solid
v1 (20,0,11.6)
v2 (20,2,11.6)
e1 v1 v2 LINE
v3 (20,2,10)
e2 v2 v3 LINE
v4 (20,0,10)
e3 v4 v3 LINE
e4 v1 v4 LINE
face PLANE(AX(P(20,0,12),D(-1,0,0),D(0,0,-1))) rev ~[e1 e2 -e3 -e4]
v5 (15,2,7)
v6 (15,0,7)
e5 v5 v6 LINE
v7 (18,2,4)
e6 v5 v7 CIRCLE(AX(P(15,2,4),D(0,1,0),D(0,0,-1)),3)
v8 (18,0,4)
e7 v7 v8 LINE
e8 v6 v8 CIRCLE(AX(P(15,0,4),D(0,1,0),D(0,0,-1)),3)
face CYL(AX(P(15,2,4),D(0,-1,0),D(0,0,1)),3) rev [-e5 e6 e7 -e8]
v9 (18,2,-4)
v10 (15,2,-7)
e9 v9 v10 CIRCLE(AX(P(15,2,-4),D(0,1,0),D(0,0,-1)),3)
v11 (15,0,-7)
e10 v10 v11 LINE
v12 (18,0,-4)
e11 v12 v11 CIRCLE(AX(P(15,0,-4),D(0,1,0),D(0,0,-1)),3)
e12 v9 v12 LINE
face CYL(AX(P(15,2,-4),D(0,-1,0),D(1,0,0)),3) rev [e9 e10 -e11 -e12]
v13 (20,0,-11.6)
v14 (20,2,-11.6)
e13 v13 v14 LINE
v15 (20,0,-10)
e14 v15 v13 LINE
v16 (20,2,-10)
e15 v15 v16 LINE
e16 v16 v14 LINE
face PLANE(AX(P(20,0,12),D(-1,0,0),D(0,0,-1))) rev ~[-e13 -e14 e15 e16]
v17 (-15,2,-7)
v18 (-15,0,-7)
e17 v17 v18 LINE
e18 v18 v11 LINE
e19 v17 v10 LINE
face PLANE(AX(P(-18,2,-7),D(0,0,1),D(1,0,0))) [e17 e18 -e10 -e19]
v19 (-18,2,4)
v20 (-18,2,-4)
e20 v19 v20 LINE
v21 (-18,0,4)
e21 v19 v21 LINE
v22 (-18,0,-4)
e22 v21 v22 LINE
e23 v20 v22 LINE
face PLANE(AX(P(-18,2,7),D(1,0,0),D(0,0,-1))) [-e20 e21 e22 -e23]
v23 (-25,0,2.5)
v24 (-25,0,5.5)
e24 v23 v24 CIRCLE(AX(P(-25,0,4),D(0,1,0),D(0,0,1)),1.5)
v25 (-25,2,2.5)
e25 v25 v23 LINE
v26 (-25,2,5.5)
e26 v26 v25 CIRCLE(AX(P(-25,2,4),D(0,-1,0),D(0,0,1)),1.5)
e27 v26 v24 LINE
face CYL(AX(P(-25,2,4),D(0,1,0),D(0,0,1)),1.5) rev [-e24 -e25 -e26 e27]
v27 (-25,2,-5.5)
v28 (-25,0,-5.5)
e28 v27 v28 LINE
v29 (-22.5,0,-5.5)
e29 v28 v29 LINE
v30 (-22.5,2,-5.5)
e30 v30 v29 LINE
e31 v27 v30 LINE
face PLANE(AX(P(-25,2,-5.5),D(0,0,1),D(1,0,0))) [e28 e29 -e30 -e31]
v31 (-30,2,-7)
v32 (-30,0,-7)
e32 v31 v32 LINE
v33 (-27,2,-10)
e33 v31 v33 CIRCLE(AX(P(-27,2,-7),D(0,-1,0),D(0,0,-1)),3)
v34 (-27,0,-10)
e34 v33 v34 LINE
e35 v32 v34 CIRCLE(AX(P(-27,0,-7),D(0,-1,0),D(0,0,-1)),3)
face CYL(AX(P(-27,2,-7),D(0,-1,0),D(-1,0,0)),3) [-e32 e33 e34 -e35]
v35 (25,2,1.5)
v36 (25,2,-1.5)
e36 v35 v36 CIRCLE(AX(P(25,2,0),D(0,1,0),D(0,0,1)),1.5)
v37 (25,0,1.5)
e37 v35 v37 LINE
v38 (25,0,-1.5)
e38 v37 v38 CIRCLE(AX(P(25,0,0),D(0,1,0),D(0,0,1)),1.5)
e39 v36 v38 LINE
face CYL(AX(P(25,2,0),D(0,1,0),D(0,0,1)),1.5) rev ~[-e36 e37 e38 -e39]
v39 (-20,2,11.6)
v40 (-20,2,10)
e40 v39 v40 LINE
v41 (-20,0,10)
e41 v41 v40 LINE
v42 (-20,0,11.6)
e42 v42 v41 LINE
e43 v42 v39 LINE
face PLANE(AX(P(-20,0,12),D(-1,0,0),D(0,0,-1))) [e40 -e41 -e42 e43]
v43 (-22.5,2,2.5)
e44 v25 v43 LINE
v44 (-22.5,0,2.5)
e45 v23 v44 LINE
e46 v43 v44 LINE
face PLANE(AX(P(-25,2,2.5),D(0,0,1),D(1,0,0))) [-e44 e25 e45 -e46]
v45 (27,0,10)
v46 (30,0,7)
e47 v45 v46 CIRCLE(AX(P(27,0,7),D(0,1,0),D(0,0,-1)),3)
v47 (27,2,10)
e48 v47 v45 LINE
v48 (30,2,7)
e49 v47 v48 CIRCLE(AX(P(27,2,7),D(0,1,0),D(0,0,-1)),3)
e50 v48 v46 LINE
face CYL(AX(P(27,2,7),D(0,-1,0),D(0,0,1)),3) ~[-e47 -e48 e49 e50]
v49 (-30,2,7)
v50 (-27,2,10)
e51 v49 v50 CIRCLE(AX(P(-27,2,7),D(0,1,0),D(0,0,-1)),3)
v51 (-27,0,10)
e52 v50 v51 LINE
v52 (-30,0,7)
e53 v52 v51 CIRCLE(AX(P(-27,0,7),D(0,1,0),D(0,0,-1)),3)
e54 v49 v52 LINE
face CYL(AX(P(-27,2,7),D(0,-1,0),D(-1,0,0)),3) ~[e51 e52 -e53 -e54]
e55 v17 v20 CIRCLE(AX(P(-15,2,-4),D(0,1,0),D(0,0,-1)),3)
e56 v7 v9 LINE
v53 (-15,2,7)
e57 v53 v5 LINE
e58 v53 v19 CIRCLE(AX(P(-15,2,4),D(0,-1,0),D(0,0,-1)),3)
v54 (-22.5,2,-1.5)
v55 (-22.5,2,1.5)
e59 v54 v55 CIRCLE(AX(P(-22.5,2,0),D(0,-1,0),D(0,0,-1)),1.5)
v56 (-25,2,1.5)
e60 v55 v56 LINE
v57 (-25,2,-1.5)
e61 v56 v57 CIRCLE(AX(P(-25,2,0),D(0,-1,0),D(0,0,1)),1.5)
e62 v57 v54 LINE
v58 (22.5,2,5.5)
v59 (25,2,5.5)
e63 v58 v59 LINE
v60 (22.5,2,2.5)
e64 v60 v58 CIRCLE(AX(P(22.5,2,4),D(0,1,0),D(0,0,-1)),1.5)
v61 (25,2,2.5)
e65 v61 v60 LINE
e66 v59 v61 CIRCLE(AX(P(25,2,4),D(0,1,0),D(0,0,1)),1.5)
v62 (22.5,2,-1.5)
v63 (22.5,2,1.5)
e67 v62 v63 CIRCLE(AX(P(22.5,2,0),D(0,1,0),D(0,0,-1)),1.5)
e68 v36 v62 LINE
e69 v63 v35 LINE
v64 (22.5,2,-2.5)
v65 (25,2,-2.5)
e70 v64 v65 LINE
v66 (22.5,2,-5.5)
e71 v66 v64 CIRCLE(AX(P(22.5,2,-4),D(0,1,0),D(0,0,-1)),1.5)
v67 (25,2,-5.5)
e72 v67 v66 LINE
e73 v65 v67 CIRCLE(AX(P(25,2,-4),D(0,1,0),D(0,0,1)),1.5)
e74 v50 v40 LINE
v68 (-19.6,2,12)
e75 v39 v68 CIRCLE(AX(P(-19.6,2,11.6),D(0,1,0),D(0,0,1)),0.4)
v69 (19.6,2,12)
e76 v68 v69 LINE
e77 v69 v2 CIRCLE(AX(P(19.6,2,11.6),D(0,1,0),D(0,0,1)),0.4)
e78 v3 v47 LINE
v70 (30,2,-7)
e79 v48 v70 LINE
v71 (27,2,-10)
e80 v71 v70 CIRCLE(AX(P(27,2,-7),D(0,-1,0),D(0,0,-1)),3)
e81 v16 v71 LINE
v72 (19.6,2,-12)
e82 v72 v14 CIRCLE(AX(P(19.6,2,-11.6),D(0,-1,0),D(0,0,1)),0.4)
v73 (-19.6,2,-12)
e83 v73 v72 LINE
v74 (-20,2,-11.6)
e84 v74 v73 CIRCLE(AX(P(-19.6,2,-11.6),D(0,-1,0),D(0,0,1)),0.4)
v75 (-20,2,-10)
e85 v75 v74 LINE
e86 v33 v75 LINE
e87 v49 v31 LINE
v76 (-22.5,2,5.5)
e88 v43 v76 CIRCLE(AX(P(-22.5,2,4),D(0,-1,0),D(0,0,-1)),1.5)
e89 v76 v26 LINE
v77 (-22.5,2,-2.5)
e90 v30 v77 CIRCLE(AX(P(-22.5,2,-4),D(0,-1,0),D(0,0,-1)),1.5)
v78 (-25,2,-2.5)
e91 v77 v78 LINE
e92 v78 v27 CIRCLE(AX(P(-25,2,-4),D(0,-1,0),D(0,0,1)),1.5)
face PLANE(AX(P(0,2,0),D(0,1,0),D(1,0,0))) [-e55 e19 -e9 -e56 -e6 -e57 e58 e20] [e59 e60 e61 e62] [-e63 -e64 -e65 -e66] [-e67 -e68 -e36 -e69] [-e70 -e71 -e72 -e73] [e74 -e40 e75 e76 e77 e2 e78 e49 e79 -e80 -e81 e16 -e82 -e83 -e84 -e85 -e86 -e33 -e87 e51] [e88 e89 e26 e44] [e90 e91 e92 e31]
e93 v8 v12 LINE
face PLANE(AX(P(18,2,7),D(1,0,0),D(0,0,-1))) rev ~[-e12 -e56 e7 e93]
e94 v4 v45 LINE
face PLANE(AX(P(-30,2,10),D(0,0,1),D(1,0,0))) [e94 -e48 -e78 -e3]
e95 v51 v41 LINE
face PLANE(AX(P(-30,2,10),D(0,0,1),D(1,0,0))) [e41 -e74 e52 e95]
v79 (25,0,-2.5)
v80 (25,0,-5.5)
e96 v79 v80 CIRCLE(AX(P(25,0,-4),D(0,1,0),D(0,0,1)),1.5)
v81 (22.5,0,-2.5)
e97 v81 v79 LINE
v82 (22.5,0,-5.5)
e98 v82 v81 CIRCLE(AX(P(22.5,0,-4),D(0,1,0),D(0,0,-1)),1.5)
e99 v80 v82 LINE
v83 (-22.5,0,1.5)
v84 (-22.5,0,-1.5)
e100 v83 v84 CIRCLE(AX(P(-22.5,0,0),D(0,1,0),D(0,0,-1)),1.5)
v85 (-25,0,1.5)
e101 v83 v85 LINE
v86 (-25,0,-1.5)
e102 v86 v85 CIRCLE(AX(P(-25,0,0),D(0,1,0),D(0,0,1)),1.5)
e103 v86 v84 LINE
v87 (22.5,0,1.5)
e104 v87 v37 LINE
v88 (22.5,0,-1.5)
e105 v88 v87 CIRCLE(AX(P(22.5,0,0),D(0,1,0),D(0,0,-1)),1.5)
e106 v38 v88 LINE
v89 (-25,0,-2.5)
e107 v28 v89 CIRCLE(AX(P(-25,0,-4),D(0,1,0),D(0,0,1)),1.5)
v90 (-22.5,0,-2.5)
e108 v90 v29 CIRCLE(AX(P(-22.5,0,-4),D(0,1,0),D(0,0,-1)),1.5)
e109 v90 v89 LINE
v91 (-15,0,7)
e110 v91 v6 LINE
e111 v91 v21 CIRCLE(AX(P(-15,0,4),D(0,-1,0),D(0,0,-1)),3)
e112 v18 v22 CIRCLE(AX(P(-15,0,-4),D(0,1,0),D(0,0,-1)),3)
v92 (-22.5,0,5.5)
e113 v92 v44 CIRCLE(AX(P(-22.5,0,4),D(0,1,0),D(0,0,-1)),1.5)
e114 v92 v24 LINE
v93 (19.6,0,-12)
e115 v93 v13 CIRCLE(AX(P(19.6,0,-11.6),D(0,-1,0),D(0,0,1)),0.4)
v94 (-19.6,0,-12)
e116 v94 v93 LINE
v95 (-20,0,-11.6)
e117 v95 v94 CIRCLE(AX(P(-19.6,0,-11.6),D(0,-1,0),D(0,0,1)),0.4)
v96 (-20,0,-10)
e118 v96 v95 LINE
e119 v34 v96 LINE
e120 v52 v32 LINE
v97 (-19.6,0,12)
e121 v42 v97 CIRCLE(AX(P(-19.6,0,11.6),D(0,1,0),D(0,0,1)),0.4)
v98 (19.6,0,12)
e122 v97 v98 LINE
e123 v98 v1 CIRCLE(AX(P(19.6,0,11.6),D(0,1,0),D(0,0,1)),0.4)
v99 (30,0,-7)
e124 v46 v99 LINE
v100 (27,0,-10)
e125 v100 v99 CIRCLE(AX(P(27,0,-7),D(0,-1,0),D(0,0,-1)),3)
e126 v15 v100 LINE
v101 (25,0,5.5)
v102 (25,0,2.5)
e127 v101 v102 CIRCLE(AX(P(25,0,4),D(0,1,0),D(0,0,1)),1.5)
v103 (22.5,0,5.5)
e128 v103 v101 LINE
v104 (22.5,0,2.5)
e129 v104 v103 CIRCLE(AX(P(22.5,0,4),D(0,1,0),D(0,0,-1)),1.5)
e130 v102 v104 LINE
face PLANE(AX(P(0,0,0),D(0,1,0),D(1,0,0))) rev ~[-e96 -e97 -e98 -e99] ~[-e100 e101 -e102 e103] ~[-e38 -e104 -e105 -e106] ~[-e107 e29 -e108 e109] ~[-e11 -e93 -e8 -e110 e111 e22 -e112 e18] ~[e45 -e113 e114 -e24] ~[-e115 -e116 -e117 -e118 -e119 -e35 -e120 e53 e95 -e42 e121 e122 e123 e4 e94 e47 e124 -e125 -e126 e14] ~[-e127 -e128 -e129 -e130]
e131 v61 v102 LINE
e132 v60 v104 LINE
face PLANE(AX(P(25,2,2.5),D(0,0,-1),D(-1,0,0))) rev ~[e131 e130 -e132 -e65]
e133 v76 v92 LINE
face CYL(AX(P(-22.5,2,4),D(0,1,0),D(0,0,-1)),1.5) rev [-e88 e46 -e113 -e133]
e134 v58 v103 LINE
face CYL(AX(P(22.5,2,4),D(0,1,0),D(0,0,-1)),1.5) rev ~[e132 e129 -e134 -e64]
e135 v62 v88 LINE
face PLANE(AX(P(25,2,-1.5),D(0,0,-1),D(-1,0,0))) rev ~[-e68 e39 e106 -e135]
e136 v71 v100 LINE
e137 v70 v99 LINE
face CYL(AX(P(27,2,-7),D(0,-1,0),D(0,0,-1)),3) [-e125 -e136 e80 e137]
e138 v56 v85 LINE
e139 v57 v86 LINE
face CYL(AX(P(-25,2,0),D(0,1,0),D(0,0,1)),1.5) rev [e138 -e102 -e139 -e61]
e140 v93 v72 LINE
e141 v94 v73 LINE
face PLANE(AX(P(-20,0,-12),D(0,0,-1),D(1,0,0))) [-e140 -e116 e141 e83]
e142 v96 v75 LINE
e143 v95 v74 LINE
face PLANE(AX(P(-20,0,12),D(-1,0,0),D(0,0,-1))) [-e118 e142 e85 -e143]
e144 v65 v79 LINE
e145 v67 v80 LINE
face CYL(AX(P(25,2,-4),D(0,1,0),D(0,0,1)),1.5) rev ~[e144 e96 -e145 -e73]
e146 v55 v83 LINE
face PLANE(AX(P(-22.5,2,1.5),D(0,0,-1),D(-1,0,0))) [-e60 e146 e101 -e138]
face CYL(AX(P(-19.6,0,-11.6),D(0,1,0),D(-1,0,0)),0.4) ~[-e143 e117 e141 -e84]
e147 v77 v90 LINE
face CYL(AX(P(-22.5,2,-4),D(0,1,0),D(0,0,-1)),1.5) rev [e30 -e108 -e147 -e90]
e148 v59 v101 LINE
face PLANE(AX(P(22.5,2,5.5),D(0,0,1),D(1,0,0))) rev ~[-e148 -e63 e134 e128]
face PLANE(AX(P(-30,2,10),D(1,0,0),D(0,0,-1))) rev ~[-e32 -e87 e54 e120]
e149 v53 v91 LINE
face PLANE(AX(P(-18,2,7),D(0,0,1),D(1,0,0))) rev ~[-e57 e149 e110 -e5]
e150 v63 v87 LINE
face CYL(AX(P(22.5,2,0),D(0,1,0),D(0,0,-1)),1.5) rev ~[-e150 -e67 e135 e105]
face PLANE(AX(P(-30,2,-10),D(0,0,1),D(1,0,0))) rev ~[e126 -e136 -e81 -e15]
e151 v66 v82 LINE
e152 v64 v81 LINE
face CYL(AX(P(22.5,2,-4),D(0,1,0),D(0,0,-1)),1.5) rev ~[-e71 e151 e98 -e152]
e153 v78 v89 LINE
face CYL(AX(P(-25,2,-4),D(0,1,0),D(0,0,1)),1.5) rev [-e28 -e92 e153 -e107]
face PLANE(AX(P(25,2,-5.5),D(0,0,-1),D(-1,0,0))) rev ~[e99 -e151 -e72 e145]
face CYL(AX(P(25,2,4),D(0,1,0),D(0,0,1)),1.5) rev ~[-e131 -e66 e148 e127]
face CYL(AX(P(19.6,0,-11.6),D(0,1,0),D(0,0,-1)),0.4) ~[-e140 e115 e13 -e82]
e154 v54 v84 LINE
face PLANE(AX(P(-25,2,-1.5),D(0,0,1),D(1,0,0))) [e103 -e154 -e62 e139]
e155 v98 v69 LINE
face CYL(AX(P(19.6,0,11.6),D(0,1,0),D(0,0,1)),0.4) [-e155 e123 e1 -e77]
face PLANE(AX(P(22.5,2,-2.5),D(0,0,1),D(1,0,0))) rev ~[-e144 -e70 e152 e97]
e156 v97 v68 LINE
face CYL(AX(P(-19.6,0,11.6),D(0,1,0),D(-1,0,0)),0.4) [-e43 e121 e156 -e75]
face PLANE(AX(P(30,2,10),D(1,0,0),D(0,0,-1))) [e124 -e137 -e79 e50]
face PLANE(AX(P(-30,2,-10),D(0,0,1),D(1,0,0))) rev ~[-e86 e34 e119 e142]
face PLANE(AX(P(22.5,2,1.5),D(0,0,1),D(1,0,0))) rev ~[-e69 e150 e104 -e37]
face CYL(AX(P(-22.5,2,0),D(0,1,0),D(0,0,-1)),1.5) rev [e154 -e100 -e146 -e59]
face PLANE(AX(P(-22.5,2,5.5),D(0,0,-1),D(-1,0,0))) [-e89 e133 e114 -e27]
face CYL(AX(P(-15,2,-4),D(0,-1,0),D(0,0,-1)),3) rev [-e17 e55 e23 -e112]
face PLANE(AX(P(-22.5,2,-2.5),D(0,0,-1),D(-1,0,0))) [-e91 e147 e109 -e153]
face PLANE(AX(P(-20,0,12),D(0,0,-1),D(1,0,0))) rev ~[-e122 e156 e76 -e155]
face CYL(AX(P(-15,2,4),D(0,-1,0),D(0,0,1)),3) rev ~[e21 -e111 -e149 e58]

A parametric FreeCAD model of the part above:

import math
import FreeCAD as App
import Part
import Sketcher
from FreeCAD import Vector
Q = App.Units.Quantity


def edges_at(feature, points):
    """Names of the edges that pass closest to the given points."""
    edges = feature.Shape.Edges
    near = lambda p: min(range(len(edges)), key=lambda i: edges[i].distToShape(Part.Vertex(*p))[0])
    return sorted({f"Edge{near(p) + 1}" for p in points})


def add_polygon(sketch, points):
    """Adds a closed chain of lines whose ends are joined by coincident constraints."""
    first, n = sketch.GeometryCount, len(points)
    for a, b in zip(points, points[1:] + points[:1]):
        sketch.addGeometry(Part.LineSegment(App.Vector(*a, 0), App.Vector(*b, 0)), False)
    for i in range(n):
        sketch.addConstraint(Sketcher.Constraint("Coincident", first + i, 2, first + (i + 1) % n, 1))

doc = App.newDocument("Part")
body = doc.addObject("PartDesign::Body", "Body")

sketch1 = body.newObject("Sketcher::SketchObject", "Sketch")
sketch1.AttachmentSupport = (doc.getObject("XZ_Plane"), [""])
sketch1.MapMode = "FlatFace"
add_polygon(sketch1, [(-20, -12), (-20, 12), (20, 12), (20, -12)])
sketch1.addConstraint(Sketcher.Constraint("Vertical", 0))
sketch1.addConstraint(Sketcher.Constraint("Horizontal", 1))
sketch1.addConstraint(Sketcher.Constraint("Vertical", 2))
sketch1.addConstraint(Sketcher.Constraint("Horizontal", 3))
sketch1.addConstraint(Sketcher.Constraint("Symmetric", 0, 2, 2, 2, -1, 1))
sketch1.addConstraint(Sketcher.Constraint("DistanceX", 1, 1, 1, 2, Q("40 mm")))
sketch1.addConstraint(Sketcher.Constraint("DistanceY", 0, 1, 0, 2, Q("24 mm")))
pad1 = body.newObject("PartDesign::Pad", "Pad")
pad1.Profile = sketch1
pad1.Length = 2
pad1.Reversed = True

sketch2 = body.newObject("Sketcher::SketchObject", "Sketch001")
sketch2.AttachmentSupport = (doc.getObject("XZ_Plane"), [""])
sketch2.MapMode = "FlatFace"
sketch2.AttachmentOffset = App.Placement(Vector(0, 0, -2), App.Rotation())
add_polygon(sketch2, [(-30, -10), (-30, 10), (30, 10), (30, -10)])
sketch2.addConstraint(Sketcher.Constraint("Vertical", 0))
sketch2.addConstraint(Sketcher.Constraint("Horizontal", 1))
sketch2.addConstraint(Sketcher.Constraint("Vertical", 2))
sketch2.addConstraint(Sketcher.Constraint("Horizontal", 3))
sketch2.addConstraint(Sketcher.Constraint("Symmetric", 0, 2, 2, 2, -1, 1))
sketch2.addConstraint(Sketcher.Constraint("DistanceX", 1, 1, 1, 2, Q("60 mm")))
sketch2.addConstraint(Sketcher.Constraint("DistanceY", 0, 1, 0, 2, Q("20 mm")))
pad2 = body.newObject("PartDesign::Pad", "Pad001")
pad2.Profile = sketch2
pad2.Length = 2

sketch3 = body.newObject("Sketcher::SketchObject", "Sketch002")
sketch3.AttachmentSupport = (doc.getObject("XZ_Plane"), [""])
sketch3.MapMode = "FlatFace"
sketch3.AttachmentOffset = App.Placement(Vector(0, 0, -2), App.Rotation())
sketch3.addGeometry(Part.LineSegment(Vector(-22.5, -1.5, 0), Vector(-25, -1.5, 0)), False)
sketch3.addGeometry(Part.ArcOfCircle(Part.Circle(Vector(-25, 0, 0), Vector(0, 0, 1), 1.5), math.radians(90), math.radians(270)), False)
sketch3.addGeometry(Part.LineSegment(Vector(-25, 1.5, 0), Vector(-22.5, 1.5, 0)), False)
sketch3.addGeometry(Part.ArcOfCircle(Part.Circle(Vector(-22.5, 0, 0), Vector(0, 0, 1), 1.5), math.radians(-90), math.radians(90)), False)
sketch3.addGeometry(Part.LineSegment(Vector(-22.5, -5.5, 0), Vector(-25, -5.5, 0)), False)
sketch3.addGeometry(Part.ArcOfCircle(Part.Circle(Vector(-25, -4, 0), Vector(0, 0, 1), 1.5), math.radians(90), math.radians(270)), False)
sketch3.addGeometry(Part.LineSegment(Vector(-25, -2.5, 0), Vector(-22.5, -2.5, 0)), False)
sketch3.addGeometry(Part.ArcOfCircle(Part.Circle(Vector(-22.5, -4, 0), Vector(0, 0, 1), 1.5), math.radians(-90), math.radians(90)), False)
sketch3.addGeometry(Part.LineSegment(Vector(-22.5, 2.5, 0), Vector(-25, 2.5, 0)), False)
sketch3.addGeometry(Part.ArcOfCircle(Part.Circle(Vector(-25, 4, 0), Vector(0, 0, 1), 1.5), math.radians(90), math.radians(270)), False)
sketch3.addGeometry(Part.LineSegment(Vector(-25, 5.5, 0), Vector(-22.5, 5.5, 0)), False)
sketch3.addGeometry(Part.ArcOfCircle(Part.Circle(Vector(-22.5, 4, 0), Vector(0, 0, 1), 1.5), math.radians(-90), math.radians(90)), False)
sketch3.addGeometry(Part.LineSegment(Vector(25, 2.5, 0), Vector(22.5, 2.5, 0)), False)
sketch3.addGeometry(Part.ArcOfCircle(Part.Circle(Vector(22.5, 4, 0), Vector(0, 0, 1), 1.5), math.radians(90), math.radians(270)), False)
sketch3.addGeometry(Part.LineSegment(Vector(22.5, 5.5, 0), Vector(25, 5.5, 0)), False)
sketch3.addGeometry(Part.ArcOfCircle(Part.Circle(Vector(25, 4, 0), Vector(0, 0, 1), 1.5), math.radians(-90), math.radians(90)), False)
sketch3.addGeometry(Part.LineSegment(Vector(25, -1.5, 0), Vector(22.5, -1.5, 0)), False)
sketch3.addGeometry(Part.ArcOfCircle(Part.Circle(Vector(22.5, 0, 0), Vector(0, 0, 1), 1.5), math.radians(90), math.radians(270)), False)
sketch3.addGeometry(Part.LineSegment(Vector(22.5, 1.5, 0), Vector(25, 1.5, 0)), False)
sketch3.addGeometry(Part.ArcOfCircle(Part.Circle(Vector(25, 0, 0), Vector(0, 0, 1), 1.5), math.radians(-90), math.radians(90)), False)
sketch3.addGeometry(Part.LineSegment(Vector(25, -5.5, 0), Vector(22.5, -5.5, 0)), False)
sketch3.addGeometry(Part.ArcOfCircle(Part.Circle(Vector(22.5, -4, 0), Vector(0, 0, 1), 1.5), math.radians(90), math.radians(270)), False)
sketch3.addGeometry(Part.LineSegment(Vector(22.5, -2.5, 0), Vector(25, -2.5, 0)), False)
sketch3.addGeometry(Part.ArcOfCircle(Part.Circle(Vector(25, -4, 0), Vector(0, 0, 1), 1.5), math.radians(-90), math.radians(90)), False)
sketch3.addConstraint(Sketcher.Constraint("Tangent", 0, 2, 1, 2))
sketch3.addConstraint(Sketcher.Constraint("Tangent", 1, 1, 2, 1))
sketch3.addConstraint(Sketcher.Constraint("Tangent", 2, 2, 3, 2))
sketch3.addConstraint(Sketcher.Constraint("Tangent", 3, 1, 0, 1))
sketch3.addConstraint(Sketcher.Constraint("Tangent", 4, 2, 5, 2))
sketch3.addConstraint(Sketcher.Constraint("Tangent", 5, 1, 6, 1))
sketch3.addConstraint(Sketcher.Constraint("Tangent", 6, 2, 7, 2))
sketch3.addConstraint(Sketcher.Constraint("Tangent", 7, 1, 4, 1))
sketch3.addConstraint(Sketcher.Constraint("Tangent", 8, 2, 9, 2))
sketch3.addConstraint(Sketcher.Constraint("Tangent", 9, 1, 10, 1))
sketch3.addConstraint(Sketcher.Constraint("Tangent", 10, 2, 11, 2))
sketch3.addConstraint(Sketcher.Constraint("Tangent", 11, 1, 8, 1))
sketch3.addConstraint(Sketcher.Constraint("Tangent", 12, 2, 13, 2))
sketch3.addConstraint(Sketcher.Constraint("Tangent", 13, 1, 14, 1))
sketch3.addConstraint(Sketcher.Constraint("Tangent", 14, 2, 15, 2))
sketch3.addConstraint(Sketcher.Constraint("Tangent", 15, 1, 12, 1))
sketch3.addConstraint(Sketcher.Constraint("Tangent", 16, 2, 17, 2))
sketch3.addConstraint(Sketcher.Constraint("Tangent", 17, 1, 18, 1))
sketch3.addConstraint(Sketcher.Constraint("Tangent", 18, 2, 19, 2))
sketch3.addConstraint(Sketcher.Constraint("Tangent", 19, 1, 16, 1))
sketch3.addConstraint(Sketcher.Constraint("Tangent", 20, 2, 21, 2))
sketch3.addConstraint(Sketcher.Constraint("Tangent", 21, 1, 22, 1))
sketch3.addConstraint(Sketcher.Constraint("Tangent", 22, 2, 23, 2))
sketch3.addConstraint(Sketcher.Constraint("Tangent", 23, 1, 20, 1))
sketch3.addConstraint(Sketcher.Constraint("Horizontal", 0))
sketch3.addConstraint(Sketcher.Constraint("Horizontal", 2))
sketch3.addConstraint(Sketcher.Constraint("Horizontal", 4))
sketch3.addConstraint(Sketcher.Constraint("Horizontal", 6))
sketch3.addConstraint(Sketcher.Constraint("Horizontal", 8))
sketch3.addConstraint(Sketcher.Constraint("Horizontal", 10))
sketch3.addConstraint(Sketcher.Constraint("Horizontal", 12))
sketch3.addConstraint(Sketcher.Constraint("Horizontal", 14))
sketch3.addConstraint(Sketcher.Constraint("Horizontal", 16))
sketch3.addConstraint(Sketcher.Constraint("Horizontal", 18))
sketch3.addConstraint(Sketcher.Constraint("Horizontal", 20))
sketch3.addConstraint(Sketcher.Constraint("Horizontal", 22))
sketch3.addConstraint(Sketcher.Constraint("Equal", 3, 5))
sketch3.addConstraint(Sketcher.Constraint("Equal", 7, 9))
sketch3.addConstraint(Sketcher.Constraint("Equal", 11, 13))
sketch3.addConstraint(Sketcher.Constraint("Equal", 15, 17))
sketch3.addConstraint(Sketcher.Constraint("Equal", 19, 21))
sketch3.addConstraint(Sketcher.Constraint("Symmetric", 7, 3, 13, 3, -1, 1))
sketch3.addConstraint(Sketcher.Constraint("Symmetric", 3, 3, 17, 3, -1, 1))
sketch3.addConstraint(Sketcher.Constraint("Symmetric", 11, 3, 21, 3, -1, 1))
sketch3.addConstraint(Sketcher.Constraint("Symmetric", 11, 3, 13, 3, -2))
sketch3.addConstraint(Sketcher.Constraint("Symmetric", 1, 3, 19, 3, -2))
sketch3.addConstraint(Sketcher.Constraint("Vertical", 1, 3, 5, 3))
sketch3.addConstraint(Sketcher.Constraint("Vertical", 3, 3, 7, 3))
sketch3.addConstraint(Sketcher.Constraint("Vertical", 5, 3, 9, 3))
sketch3.addConstraint(Sketcher.Constraint("Vertical", 15, 3, 19, 3))
sketch3.addConstraint(Sketcher.Constraint("Vertical", 19, 3, 23, 3))
sketch3.addConstraint(Sketcher.Constraint("Radius", 1, Q("1.5 mm")))
sketch3.addConstraint(Sketcher.Constraint("DistanceX", 0, 2, 0, 1, Q("2.5 mm")))
sketch3.addConstraint(Sketcher.Constraint("DistanceX", 1, 3, -1, 1, Q("25 mm")))
sketch3.addConstraint(Sketcher.Constraint("DistanceY", 5, 3, -1, 1, Q("4 mm")))
pocket1 = body.newObject("PartDesign::Pocket", "Pocket")
pocket1.Profile = sketch3
pocket1.Type = "ThroughAll"
pocket1.Reversed = True

sketch4 = body.newObject("Sketcher::SketchObject", "Sketch003")
sketch4.AttachmentSupport = (doc.getObject("XZ_Plane"), [""])
sketch4.MapMode = "FlatFace"
sketch4.AttachmentOffset = App.Placement(Vector(0, 0, -2), App.Rotation())
add_polygon(sketch4, [(-18, -7), (-18, 7), (18, 7), (18, -7)])
sketch4.addConstraint(Sketcher.Constraint("Vertical", 0))
sketch4.addConstraint(Sketcher.Constraint("Horizontal", 1))
sketch4.addConstraint(Sketcher.Constraint("Vertical", 2))
sketch4.addConstraint(Sketcher.Constraint("Horizontal", 3))
sketch4.addConstraint(Sketcher.Constraint("Symmetric", 0, 2, 2, 2, -1, 1))
sketch4.addConstraint(Sketcher.Constraint("DistanceX", 1, 1, 1, 2, Q("36 mm")))
sketch4.addConstraint(Sketcher.Constraint("DistanceY", 0, 1, 0, 2, Q("14 mm")))
pocket2 = body.newObject("PartDesign::Pocket", "Pocket001")
pocket2.Profile = sketch4
pocket2.Type = "ThroughAll"
pocket2.Reversed = True
doc.recompute()

fillet = body.newObject("PartDesign::Fillet", "Fillet")
fillet.Base = (pocket2, edges_at(pocket2, [
    (18, 1, -7),
    (18, 1, 7),
    (-18, 1, 7),
    (-18, 1, -7),
    (30, 1, 10),
    (-30, 1, -10),
    (30, 1, -10),
    (-30, 1, 10),
]))
fillet.Radius = 3
doc.recompute()

fillet2 = body.newObject("PartDesign::Fillet", "Fillet001")
fillet2.Base = (fillet, edges_at(fillet, [
    (20, 1, 12),
    (-20, 1, 12),
    (-20, 1, -12),
    (20, 1, -12),
]))
fillet2.Radius = 0.4

doc.recompute()
